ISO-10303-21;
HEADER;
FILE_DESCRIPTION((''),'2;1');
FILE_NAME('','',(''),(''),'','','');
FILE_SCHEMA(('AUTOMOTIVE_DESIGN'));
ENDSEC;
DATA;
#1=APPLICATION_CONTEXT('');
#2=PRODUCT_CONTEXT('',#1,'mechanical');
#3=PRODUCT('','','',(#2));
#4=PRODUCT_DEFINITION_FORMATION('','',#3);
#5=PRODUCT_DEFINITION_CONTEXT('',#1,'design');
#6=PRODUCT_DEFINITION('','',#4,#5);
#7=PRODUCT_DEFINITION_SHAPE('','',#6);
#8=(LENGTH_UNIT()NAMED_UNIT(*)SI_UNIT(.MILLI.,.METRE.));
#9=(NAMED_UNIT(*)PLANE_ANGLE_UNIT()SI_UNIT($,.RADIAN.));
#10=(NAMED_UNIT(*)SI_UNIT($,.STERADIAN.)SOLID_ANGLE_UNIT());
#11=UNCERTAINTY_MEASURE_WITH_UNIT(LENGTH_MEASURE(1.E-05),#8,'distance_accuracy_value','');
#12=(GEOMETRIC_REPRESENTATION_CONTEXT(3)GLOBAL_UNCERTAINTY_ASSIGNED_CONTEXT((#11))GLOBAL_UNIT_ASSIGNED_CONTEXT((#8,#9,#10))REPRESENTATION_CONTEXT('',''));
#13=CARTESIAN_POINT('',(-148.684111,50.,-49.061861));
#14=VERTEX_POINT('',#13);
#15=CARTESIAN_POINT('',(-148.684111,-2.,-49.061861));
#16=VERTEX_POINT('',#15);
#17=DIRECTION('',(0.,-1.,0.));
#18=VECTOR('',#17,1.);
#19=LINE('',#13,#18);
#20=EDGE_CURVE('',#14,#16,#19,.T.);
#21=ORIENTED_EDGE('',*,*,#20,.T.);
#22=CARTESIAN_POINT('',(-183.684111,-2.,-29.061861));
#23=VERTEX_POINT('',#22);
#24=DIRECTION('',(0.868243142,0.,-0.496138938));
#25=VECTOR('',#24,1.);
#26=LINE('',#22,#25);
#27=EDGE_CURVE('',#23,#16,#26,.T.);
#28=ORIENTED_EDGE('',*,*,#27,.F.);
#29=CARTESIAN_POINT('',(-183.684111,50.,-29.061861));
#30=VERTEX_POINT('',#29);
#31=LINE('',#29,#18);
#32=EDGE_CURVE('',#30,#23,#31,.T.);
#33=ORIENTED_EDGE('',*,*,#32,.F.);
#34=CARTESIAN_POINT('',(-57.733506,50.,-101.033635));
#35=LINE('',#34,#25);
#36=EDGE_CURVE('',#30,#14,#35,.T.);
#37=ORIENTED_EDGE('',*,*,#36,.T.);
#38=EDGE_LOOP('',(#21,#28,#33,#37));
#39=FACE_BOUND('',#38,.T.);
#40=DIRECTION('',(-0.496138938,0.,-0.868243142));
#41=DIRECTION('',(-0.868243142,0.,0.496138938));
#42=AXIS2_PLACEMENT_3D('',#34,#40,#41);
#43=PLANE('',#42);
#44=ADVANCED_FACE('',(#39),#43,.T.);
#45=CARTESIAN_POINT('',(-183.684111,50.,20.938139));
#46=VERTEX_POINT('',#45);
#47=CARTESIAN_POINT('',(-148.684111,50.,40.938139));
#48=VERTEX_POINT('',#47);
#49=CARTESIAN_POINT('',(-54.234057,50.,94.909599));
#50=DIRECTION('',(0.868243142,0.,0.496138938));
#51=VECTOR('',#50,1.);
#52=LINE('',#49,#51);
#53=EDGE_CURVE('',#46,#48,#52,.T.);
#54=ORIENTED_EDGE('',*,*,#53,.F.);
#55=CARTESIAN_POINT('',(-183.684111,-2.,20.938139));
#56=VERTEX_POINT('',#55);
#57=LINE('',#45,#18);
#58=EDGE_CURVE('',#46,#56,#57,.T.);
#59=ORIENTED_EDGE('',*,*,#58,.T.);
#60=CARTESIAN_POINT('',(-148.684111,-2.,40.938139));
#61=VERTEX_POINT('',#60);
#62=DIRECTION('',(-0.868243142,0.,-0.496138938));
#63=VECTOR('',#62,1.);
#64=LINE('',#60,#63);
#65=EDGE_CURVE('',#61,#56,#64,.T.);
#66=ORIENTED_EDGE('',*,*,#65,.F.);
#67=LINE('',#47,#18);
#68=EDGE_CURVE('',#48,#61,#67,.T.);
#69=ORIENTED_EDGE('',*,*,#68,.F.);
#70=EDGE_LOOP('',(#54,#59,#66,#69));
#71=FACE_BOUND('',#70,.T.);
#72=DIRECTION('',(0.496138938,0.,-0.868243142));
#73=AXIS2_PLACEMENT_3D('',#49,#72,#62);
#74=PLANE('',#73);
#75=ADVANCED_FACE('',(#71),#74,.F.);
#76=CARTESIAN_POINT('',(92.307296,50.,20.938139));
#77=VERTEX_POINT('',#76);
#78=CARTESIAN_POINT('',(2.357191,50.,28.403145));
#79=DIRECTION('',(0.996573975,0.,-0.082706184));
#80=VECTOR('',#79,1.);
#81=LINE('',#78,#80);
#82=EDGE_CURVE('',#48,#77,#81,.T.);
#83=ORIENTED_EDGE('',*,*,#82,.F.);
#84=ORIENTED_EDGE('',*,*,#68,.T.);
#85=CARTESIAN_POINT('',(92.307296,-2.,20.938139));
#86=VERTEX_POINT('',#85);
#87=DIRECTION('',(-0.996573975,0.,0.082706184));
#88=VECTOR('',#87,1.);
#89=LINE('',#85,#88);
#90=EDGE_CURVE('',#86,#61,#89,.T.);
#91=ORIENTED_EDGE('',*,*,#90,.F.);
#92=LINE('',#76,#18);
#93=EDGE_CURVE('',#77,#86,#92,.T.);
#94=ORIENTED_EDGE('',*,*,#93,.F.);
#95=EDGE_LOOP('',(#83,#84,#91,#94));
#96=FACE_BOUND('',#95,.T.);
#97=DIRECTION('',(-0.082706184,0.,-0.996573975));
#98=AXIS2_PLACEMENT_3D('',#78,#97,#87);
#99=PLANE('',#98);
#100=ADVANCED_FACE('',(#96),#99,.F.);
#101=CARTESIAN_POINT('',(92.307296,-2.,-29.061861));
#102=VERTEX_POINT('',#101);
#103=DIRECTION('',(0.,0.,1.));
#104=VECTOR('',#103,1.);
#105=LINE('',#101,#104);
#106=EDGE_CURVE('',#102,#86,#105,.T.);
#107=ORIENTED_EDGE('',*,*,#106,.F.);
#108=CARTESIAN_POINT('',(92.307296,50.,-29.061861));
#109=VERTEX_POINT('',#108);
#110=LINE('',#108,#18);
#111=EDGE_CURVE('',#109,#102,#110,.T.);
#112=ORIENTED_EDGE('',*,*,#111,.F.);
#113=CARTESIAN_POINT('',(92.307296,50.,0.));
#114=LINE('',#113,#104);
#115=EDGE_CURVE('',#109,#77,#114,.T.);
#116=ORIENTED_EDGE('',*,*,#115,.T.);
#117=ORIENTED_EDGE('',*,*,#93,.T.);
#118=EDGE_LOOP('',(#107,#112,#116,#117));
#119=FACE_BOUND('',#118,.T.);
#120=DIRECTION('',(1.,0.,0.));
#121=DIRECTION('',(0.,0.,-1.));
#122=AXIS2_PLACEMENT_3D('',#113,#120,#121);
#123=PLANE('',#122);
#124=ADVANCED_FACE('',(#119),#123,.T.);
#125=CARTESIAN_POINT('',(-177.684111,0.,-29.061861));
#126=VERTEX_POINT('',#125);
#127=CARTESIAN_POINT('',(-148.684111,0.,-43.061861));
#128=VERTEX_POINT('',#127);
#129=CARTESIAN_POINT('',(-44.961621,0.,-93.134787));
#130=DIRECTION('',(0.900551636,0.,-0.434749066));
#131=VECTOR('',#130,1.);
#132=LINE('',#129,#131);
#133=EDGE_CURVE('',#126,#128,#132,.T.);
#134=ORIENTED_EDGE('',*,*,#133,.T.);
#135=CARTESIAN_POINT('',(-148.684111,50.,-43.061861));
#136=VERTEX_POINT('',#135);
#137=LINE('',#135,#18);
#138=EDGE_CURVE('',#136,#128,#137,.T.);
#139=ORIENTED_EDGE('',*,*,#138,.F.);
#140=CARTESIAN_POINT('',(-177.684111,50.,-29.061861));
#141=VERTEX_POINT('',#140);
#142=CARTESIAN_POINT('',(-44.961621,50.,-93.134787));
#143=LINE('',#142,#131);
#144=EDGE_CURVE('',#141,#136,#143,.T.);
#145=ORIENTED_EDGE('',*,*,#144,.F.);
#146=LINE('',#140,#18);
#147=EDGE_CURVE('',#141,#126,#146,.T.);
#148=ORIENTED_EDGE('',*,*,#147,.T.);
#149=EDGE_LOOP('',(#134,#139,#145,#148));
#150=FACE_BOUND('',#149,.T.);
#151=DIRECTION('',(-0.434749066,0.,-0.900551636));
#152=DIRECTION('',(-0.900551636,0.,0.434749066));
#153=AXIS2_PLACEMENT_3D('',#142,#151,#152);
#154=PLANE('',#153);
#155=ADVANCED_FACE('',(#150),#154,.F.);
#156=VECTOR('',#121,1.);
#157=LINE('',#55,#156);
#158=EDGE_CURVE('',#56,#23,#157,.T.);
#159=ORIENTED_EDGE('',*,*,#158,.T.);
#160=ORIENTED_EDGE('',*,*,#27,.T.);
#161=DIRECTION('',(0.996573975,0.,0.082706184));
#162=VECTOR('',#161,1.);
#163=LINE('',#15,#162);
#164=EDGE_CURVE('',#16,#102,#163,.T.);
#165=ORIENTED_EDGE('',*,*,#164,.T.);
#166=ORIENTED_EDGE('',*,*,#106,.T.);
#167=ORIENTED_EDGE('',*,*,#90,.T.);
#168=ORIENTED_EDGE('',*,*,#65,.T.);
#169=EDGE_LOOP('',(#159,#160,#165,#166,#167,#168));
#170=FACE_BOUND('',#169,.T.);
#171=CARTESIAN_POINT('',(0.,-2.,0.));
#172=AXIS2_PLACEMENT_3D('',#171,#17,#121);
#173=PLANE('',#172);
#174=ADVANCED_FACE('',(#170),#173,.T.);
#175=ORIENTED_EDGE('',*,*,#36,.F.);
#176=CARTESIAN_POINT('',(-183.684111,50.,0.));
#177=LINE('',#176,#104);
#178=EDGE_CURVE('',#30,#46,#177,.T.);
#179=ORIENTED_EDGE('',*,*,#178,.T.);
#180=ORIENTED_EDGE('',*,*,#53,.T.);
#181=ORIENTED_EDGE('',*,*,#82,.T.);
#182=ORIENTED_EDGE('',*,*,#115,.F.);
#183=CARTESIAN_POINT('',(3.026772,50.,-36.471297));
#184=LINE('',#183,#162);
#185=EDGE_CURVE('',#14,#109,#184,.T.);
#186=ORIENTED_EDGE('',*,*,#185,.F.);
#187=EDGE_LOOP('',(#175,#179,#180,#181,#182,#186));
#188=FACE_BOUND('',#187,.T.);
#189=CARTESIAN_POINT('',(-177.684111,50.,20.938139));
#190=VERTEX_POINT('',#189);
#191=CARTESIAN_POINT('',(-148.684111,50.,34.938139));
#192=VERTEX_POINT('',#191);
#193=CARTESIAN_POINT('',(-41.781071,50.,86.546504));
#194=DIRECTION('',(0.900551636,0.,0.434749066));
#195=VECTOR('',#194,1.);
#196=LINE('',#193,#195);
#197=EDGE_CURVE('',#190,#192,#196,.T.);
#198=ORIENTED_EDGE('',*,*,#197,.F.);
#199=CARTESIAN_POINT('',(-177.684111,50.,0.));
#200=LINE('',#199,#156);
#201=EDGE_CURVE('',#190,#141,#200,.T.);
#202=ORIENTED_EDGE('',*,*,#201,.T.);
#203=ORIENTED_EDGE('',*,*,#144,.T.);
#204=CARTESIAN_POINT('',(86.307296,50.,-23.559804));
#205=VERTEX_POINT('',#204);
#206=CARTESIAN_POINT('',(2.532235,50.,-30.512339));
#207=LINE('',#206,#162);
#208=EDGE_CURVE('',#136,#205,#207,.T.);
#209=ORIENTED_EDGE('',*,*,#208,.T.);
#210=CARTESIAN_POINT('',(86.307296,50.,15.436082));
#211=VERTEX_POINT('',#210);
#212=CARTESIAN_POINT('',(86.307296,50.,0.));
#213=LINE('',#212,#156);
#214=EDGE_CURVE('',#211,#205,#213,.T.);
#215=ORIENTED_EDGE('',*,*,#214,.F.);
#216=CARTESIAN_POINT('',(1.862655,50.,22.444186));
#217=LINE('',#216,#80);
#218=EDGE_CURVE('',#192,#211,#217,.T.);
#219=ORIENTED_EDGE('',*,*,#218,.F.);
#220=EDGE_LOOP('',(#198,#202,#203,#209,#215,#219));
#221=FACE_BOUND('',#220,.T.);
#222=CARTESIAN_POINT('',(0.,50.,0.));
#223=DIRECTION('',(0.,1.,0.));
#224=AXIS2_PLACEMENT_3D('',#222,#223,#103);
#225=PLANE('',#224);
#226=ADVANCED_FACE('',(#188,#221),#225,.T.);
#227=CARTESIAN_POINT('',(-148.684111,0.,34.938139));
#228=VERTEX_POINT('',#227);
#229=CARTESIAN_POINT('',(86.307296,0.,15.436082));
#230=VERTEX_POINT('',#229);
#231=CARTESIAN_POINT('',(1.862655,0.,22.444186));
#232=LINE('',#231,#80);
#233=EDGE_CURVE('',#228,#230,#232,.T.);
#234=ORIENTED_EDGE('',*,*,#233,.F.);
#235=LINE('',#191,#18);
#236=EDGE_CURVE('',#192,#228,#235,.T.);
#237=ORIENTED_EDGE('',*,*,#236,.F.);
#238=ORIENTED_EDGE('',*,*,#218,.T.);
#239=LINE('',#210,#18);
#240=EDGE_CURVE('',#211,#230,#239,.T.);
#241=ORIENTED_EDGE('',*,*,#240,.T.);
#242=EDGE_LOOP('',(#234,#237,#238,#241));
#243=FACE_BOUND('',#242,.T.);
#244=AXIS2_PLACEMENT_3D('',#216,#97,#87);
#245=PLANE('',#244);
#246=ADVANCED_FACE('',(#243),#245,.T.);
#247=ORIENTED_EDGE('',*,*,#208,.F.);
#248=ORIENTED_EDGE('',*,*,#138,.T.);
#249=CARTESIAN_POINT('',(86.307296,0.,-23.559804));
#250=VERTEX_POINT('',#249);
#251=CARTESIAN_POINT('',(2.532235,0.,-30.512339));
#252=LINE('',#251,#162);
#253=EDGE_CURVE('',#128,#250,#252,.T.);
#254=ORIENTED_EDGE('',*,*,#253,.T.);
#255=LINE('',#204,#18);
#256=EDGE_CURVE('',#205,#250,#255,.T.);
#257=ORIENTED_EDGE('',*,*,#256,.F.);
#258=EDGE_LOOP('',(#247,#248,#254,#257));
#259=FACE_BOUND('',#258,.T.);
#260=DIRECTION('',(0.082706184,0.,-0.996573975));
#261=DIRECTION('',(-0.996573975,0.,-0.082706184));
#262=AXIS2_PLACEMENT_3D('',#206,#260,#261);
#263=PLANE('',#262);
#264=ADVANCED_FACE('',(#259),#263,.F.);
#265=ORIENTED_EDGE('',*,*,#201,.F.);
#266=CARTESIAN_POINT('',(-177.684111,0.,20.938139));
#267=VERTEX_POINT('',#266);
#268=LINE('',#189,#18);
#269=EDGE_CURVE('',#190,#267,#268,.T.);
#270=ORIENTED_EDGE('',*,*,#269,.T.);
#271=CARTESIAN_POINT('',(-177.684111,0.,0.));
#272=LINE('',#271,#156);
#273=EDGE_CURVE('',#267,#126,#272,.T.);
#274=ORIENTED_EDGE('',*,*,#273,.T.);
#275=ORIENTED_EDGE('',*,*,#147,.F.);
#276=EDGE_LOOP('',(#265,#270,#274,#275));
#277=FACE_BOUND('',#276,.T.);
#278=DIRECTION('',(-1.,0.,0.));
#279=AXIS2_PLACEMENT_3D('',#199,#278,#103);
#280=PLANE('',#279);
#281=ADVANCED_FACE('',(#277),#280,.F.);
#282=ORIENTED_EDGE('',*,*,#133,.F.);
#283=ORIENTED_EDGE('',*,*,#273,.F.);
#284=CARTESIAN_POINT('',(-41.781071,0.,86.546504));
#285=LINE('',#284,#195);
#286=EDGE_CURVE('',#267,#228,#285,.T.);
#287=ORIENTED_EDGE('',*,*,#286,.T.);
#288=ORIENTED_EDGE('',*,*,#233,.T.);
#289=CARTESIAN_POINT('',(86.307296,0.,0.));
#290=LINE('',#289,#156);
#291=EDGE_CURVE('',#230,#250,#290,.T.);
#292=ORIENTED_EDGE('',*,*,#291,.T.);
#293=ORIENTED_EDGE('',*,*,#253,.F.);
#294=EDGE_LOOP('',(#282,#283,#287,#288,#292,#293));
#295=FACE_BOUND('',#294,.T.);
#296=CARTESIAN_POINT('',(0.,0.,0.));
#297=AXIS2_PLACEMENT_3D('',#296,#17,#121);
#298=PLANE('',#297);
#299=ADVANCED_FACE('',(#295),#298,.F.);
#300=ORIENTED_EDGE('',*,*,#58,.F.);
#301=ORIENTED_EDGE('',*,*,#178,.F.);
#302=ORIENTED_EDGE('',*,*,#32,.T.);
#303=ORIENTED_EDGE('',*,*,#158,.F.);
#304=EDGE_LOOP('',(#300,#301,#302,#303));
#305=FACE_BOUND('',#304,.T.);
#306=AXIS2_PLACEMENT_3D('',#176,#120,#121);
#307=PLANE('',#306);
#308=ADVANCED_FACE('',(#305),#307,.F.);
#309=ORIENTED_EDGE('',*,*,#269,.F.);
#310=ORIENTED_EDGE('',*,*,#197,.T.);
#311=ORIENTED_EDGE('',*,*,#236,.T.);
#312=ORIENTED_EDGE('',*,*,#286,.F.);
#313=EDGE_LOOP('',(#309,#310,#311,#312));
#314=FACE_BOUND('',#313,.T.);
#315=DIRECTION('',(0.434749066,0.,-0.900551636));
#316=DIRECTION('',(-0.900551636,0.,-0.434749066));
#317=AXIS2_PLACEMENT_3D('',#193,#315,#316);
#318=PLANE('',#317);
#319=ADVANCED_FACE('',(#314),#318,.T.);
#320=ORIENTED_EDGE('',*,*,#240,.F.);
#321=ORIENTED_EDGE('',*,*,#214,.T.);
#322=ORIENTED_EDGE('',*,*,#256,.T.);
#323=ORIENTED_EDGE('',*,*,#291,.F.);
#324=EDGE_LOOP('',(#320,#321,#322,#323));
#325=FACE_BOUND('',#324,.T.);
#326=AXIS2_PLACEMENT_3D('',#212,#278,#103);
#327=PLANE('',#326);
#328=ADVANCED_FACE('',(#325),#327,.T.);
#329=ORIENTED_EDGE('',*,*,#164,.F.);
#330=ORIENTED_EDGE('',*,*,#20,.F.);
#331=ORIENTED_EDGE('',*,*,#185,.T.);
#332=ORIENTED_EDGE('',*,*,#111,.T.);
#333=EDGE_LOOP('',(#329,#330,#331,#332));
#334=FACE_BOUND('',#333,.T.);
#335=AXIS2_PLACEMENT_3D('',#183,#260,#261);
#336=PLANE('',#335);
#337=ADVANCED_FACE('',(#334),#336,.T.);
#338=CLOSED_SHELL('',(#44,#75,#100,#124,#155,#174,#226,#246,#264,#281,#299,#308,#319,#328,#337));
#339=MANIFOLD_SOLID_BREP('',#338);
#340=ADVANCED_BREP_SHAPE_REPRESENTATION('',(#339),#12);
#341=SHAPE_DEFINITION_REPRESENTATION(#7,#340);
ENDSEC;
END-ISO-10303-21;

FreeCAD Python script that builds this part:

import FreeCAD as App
import Part
import Sketcher
from FreeCAD import Vector


def add_polygon(sketch, points):
    """Adds a closed chain of lines whose ends are joined by coincident constraints."""
    first, n = sketch.GeometryCount, len(points)
    for a, b in zip(points, points[1:] + points[:1]):
        sketch.addGeometry(Part.LineSegment(App.Vector(*a, 0), App.Vector(*b, 0)), False)
    for i in range(n):
        sketch.addConstraint(Sketcher.Constraint("Coincident", first + i, 2, first + (i + 1) % n, 1))

doc = App.newDocument("Part")
body = doc.addObject("PartDesign::Body", "Body")

# Sketch on XZ plane
sketch1 = body.newObject("Sketcher::SketchObject", "Sketch")
sketch1.AttachmentSupport = (doc.getObject("XZ_Plane"), [""])
sketch1.MapMode = "FlatFace"
add_polygon(sketch1, [(-149, -49), (-184, -29), (-184, 21), (-149, 41), (92, 21), (92, -29)])  # lines 0-5
add_polygon(sketch1, [(-149, 35), (-178, 21), (-178, -29), (-149, -43), (86, -24), (86, 15)])  # lines 6-11
sketch1.addConstraint([
    Sketcher.Constraint("Vertical", 1),
    Sketcher.Constraint("Vertical", 4),
    Sketcher.Constraint("Vertical", 7),
    Sketcher.Constraint("Vertical", 10),
    Sketcher.Constraint("Parallel", 5, 9),
    Sketcher.Constraint("Parallel", 3, 11),
    Sketcher.Constraint("Horizontal", 1, 2, 3, 2),
    Sketcher.Constraint("Horizontal", 0, 2, 4, 2),
    Sketcher.Constraint("Horizontal", 3, 2, 6, 2),
    Sketcher.Constraint("Horizontal", 4, 2, 7, 2),
    Sketcher.Constraint("Vertical", 2, 2, 5, 2),
    Sketcher.Constraint("Vertical", 5, 2, 8, 2),
    Sketcher.Constraint("Vertical", 8, 2, 11, 2),
    Sketcher.Constraint("Equal", 0, 2),
    Sketcher.Constraint("Equal", 6, 8),
    Sketcher.Constraint("DistanceY", 1, 1, 1, 2, 50.0),
    Sketcher.Constraint("DistanceX", 1, 2, 2, 2, 35.0),
    Sketcher.Constraint("DistanceY", 1, 2, 2, 2, 20.0),
    Sketcher.Constraint("DistanceX", 1, 2, 6, 2, 6.0),
    Sketcher.Constraint("DistanceY", 5, 2, 8, 2, 6.0),
    Sketcher.Constraint("DistanceX", 9, 2, 4, 2, 6.0),
    Sketcher.Constraint("Distance", 9, 235.799261),
    Sketcher.Constraint("DistanceX", 0, 2, -1, 1, 183.684111),
    Sketcher.Constraint("DistanceY", 0, 2, -1, 1, 29.061861),
])
pad1 = body.newObject("PartDesign::Pad", "Pad")
pad1.Profile = sketch1
pad1.Length = 50
pad1.Reversed = True

# Sketch on XZ plane
sketch2 = body.newObject("Sketcher::SketchObject", "Sketch001")
sketch2.AttachmentSupport = (doc.getObject("XZ_Plane"), [""])
sketch2.MapMode = "FlatFace"
add_polygon(sketch2, [(-184, 21), (-184, -29), (-149, -49), (92, -29), (92, 21), (-149, 41)])  # lines 0-5
sketch2.addConstraint([
    Sketcher.Constraint("Vertical", 0),
    Sketcher.Constraint("Vertical", 3),
    Sketcher.Constraint("Horizontal", 0, 2, 2, 2),
    Sketcher.Constraint("Horizontal", 3, 2, 5, 2),
    Sketcher.Constraint("Vertical", 1, 2, 4, 2),
    Sketcher.Constraint("Equal", 2, 4),
    Sketcher.Constraint("DistanceY", 0, 2, 0, 1, 50.0),
    Sketcher.Constraint("DistanceX", 0, 2, 1, 2, 35.0),
    Sketcher.Constraint("DistanceY", 1, 2, 0, 2, 20.0),
    Sketcher.Constraint("DistanceX", 0, 2, -1, 1, 183.684111),
    Sketcher.Constraint("DistanceY", 0, 2, -1, 1, 29.061861),
    Sketcher.Constraint("Distance", 2, 241.819887),
])
pad2 = body.newObject("PartDesign::Pad", "Pad001")
pad2.Profile = sketch2
pad2.Length = 2

doc.recompute()
